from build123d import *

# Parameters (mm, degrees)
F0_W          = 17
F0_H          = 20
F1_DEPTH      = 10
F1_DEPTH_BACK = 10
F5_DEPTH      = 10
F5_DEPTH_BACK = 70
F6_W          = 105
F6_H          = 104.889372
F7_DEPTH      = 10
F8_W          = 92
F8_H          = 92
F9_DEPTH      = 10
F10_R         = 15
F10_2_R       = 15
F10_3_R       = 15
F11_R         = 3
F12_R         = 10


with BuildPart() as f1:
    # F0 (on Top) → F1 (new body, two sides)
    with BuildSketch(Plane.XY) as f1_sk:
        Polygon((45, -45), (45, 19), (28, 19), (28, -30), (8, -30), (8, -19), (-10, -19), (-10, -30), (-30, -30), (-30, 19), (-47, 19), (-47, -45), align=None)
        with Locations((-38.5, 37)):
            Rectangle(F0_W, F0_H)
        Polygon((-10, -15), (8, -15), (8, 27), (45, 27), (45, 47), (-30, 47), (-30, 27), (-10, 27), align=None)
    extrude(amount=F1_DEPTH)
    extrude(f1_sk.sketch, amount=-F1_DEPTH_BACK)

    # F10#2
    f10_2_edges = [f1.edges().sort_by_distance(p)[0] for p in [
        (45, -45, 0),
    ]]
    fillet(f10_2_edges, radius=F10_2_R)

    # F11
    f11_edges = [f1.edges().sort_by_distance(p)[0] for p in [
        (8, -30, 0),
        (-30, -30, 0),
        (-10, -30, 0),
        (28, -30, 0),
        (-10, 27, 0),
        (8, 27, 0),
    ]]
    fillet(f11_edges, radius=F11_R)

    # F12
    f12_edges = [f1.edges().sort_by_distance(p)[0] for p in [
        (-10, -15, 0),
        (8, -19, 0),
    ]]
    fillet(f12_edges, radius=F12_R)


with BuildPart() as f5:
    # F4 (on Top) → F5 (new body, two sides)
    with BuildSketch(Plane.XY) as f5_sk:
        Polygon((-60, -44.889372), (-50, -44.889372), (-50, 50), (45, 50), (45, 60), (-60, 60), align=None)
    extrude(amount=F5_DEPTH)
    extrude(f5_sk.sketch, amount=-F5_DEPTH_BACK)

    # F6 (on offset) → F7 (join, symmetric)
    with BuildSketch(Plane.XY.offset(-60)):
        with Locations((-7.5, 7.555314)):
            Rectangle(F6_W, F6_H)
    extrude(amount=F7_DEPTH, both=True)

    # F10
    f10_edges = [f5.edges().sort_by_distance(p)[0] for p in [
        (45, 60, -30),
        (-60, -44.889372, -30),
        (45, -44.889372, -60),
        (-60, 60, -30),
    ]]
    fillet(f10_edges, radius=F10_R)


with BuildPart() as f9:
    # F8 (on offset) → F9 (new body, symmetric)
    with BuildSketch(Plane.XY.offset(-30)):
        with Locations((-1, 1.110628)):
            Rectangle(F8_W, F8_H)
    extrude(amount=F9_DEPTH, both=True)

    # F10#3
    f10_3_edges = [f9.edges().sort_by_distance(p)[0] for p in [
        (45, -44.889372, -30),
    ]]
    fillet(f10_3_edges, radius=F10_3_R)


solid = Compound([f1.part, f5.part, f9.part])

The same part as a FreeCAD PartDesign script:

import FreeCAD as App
import Part
import Sketcher

V = App.Vector


def edges_at(feature, points):
    """Names of the edges that pass closest to the given points."""
    edges = feature.Shape.Edges
    near = lambda p: min(range(len(edges)), key=lambda i: edges[i].distToShape(Part.Vertex(*p))[0])
    return sorted({f"Edge{near(p) + 1}" for p in points})


def add_polygon(sketch, points):
    """Adds a closed chain of lines whose ends are joined by coincident constraints."""
    first, n = sketch.GeometryCount, len(points)
    for a, b in zip(points, points[1:] + points[:1]):
        sketch.addGeometry(Part.LineSegment(App.Vector(*a, 0), App.Vector(*b, 0)), False)
    for i in range(n):
        sketch.addConstraint(Sketcher.Constraint("Coincident", first + i, 2, first + (i + 1) % n, 1))

doc = App.newDocument("Part")
body = doc.addObject("PartDesign::Body", "Body")
body.AllowCompound = True

# Sketch on XY plane
sketch1 = body.newObject("Sketcher::SketchObject", "Sketch")
sketch1.AttachmentSupport = (doc.getObject("XY_Plane"), [""])
sketch1.MapMode = "FlatFace"
add_polygon(sketch1, [(45, -45), (45, 19), (28, 19), (28, -30), (8, -30), (8, -19), (-10, -19), (-10, -30), (-30, -30), (-30, 19), (-47, 19), (-47, -45)])  # lines 0-11
add_polygon(sketch1, [(-47, 47), (-47, 27), (-10, 27), (-10, -15), (8, -15), (8, 27), (45, 27), (45, 47)])  # lines 12-19
sketch1.addConstraint(Sketcher.Constraint("Vertical", 0))
sketch1.addConstraint(Sketcher.Constraint("Horizontal", 1))
sketch1.addConstraint(Sketcher.Constraint("Vertical", 2))
sketch1.addConstraint(Sketcher.Constraint("Horizontal", 3))
sketch1.addConstraint(Sketcher.Constraint("Vertical", 4))
sketch1.addConstraint(Sketcher.Constraint("Horizontal", 5))
sketch1.addConstraint(Sketcher.Constraint("Vertical", 6))
sketch1.addConstraint(Sketcher.Constraint("Horizontal", 7))
sketch1.addConstraint(Sketcher.Constraint("Vertical", 8))
sketch1.addConstraint(Sketcher.Constraint("Horizontal", 9))
sketch1.addConstraint(Sketcher.Constraint("Vertical", 10))
sketch1.addConstraint(Sketcher.Constraint("Horizontal", 11))
sketch1.addConstraint(Sketcher.Constraint("Vertical", 12))
sketch1.addConstraint(Sketcher.Constraint("Horizontal", 13))
sketch1.addConstraint(Sketcher.Constraint("Vertical", 14))
sketch1.addConstraint(Sketcher.Constraint("Horizontal", 15))
sketch1.addConstraint(Sketcher.Constraint("Vertical", 16))
sketch1.addConstraint(Sketcher.Constraint("Horizontal", 17))
sketch1.addConstraint(Sketcher.Constraint("Vertical", 18))
sketch1.addConstraint(Sketcher.Constraint("Horizontal", 19))
sketch1.addConstraint(Sketcher.Constraint("Horizontal", 3, 2, 6, 2))
sketch1.addConstraint(Sketcher.Constraint("Horizontal", 1, 2, 8, 2))
sketch1.addConstraint(Sketcher.Constraint("Horizontal", 13, 2, 16, 2))
sketch1.addConstraint(Sketcher.Constraint("Vertical", 10, 2, 12, 2))
sketch1.addConstraint(Sketcher.Constraint("Vertical", 6, 2, 13, 2))
sketch1.addConstraint(Sketcher.Constraint("Vertical", 4, 2, 15, 2))
sketch1.addConstraint(Sketcher.Constraint("Vertical", 11, 2, 17, 2))
sketch1.addConstraint(Sketcher.Constraint("Equal", 3, 7))
sketch1.addConstraint(Sketcher.Constraint("Equal", 1, 9))
sketch1.addConstraint(Sketcher.Constraint("Equal", 7, 12))
sketch1.addConstraint(Sketcher.Constraint("DistanceX", 1, 2, 1, 1, 17.0))
sketch1.addConstraint(Sketcher.Constraint("DistanceX", 3, 2, 3, 1, 20.0))
sketch1.addConstraint(Sketcher.Constraint("DistanceX", 5, 2, 5, 1, 18.0))
sketch1.addConstraint(Sketcher.Constraint("DistanceY", 0, 1, 0, 2, 64.0))
sketch1.addConstraint(Sketcher.Constraint("DistanceY", 2, 2, 2, 1, 49.0))
sketch1.addConstraint(Sketcher.Constraint("DistanceY", 4, 1, 4, 2, 11.0))
sketch1.addConstraint(Sketcher.Constraint("DistanceY", 14, 2, 14, 1, 42.0))
sketch1.addConstraint(Sketcher.Constraint("DistanceX", -1, 1, 0, 2, 45.0))
sketch1.addConstraint(Sketcher.Constraint("DistanceY", -1, 1, 0, 2, 19.0))
sketch1.addConstraint(Sketcher.Constraint("DistanceY", -1, 1, 12, 2, 27.0))
pad1 = body.newObject("PartDesign::Pad", "Pad")
pad1.Profile = sketch1
pad1.Type = "TwoLengths"
pad1.Length = 10
pad1.Length2 = 10
doc.recompute()

fillet = body.newObject("PartDesign::Fillet", "Fillet")
fillet.Base = (pad1, edges_at(pad1, [(45, -45, 0)]))
fillet.Radius = 15
doc.recompute()

fillet2 = body.newObject("PartDesign::Fillet", "Fillet001")
fillet2.Base = (fillet, edges_at(fillet, [
    (8, -30, 0),
    (-30, -30, 0),
    (-10, -30, 0),
    (28, -30, 0),
    (-10, 27, 0),
    (8, 27, 0),
]))
fillet2.Radius = 3
doc.recompute()

fillet3 = body.newObject("PartDesign::Fillet", "Fillet002")
fillet3.Base = (fillet2, edges_at(fillet2, [(-10, -15, 0), (8, -19, 0)]))
fillet3.Radius = 10
body2 = doc.addObject("PartDesign::Body", "Body001")

# Sketch on XY plane
sketch2 = body2.newObject("Sketcher::SketchObject", "Sketch001")
sketch2.AttachmentSupport = (doc.getObject("XY_Plane001"), [""])
sketch2.MapMode = "FlatFace"
add_polygon(sketch2, [(-60, -44.889372), (-50, -44.889372), (-50, 50), (45, 50), (45, 60), (-60, 60)])  # lines 0-5
sketch2.addConstraint(Sketcher.Constraint("Horizontal", 0))
sketch2.addConstraint(Sketcher.Constraint("Vertical", 1))
sketch2.addConstraint(Sketcher.Constraint("Horizontal", 2))
sketch2.addConstraint(Sketcher.Constraint("Vertical", 3))
sketch2.addConstraint(Sketcher.Constraint("Horizontal", 4))
sketch2.addConstraint(Sketcher.Constraint("Vertical", 5))
sketch2.addConstraint(Sketcher.Constraint("Equal", 0, 3))
sketch2.addConstraint(Sketcher.Constraint("DistanceX", 0, 1, 0, 2, 10.0))
sketch2.addConstraint(Sketcher.Constraint("DistanceX", 2, 1, 2, 2, 95.0))
sketch2.addConstraint(Sketcher.Constraint("DistanceX", 0, 2, -1, 1, 50.0))
sketch2.addConstraint(Sketcher.Constraint("DistanceY", -1, 1, 1, 2, 50.0))
sketch2.addConstraint(Sketcher.Constraint("DistanceY", 1, 1, 1, 2, 94.889372))
pad2 = body2.newObject("PartDesign::Pad", "Pad001")
pad2.Profile = sketch2
pad2.Type = "TwoLengths"
pad2.Length = 10
pad2.Length2 = 70

# Sketch on XY plane
sketch3 = body2.newObject("Sketcher::SketchObject", "Sketch002")
sketch3.AttachmentSupport = (doc.getObject("XY_Plane001"), [""])
sketch3.MapMode = "FlatFace"
sketch3.AttachmentOffset = App.Placement(V(0, 0, -60), App.Rotation())
add_polygon(sketch3, [(-60, 60), (-60, -44.889372), (45, -44.889372), (45, 60)])  # lines 0-3
sketch3.addConstraint(Sketcher.Constraint("Vertical", 0))
sketch3.addConstraint(Sketcher.Constraint("Horizontal", 1))
sketch3.addConstraint(Sketcher.Constraint("Vertical", 2))
sketch3.addConstraint(Sketcher.Constraint("Horizontal", 3))
sketch3.addConstraint(Sketcher.Constraint("DistanceX", 1, 1, 1, 2, 105.0))
sketch3.addConstraint(Sketcher.Constraint("DistanceX", 0, 2, -1, 1, 60.0))
sketch3.addConstraint(Sketcher.Constraint("DistanceY", -1, 1, 2, 2, 60.0))
sketch3.addConstraint(Sketcher.Constraint("DistanceY", 0, 2, 0, 1, 104.889372))
pad3 = body2.newObject("PartDesign::Pad", "Pad002")
pad3.Profile = sketch3
pad3.Length = 20
pad3.Midplane = True
doc.recompute()

fillet4 = body2.newObject("PartDesign::Fillet", "Fillet003")
fillet4.Base = (pad3, edges_at(pad3, [
    (45, 60, -30),
    (-60, -44.889, -30),
    (45, -44.889, -60),
    (-60, 60, -30),
]))
fillet4.Radius = 15
body3 = doc.addObject("PartDesign::Body", "Body002")

# Sketch on XY plane
sketch4 = body3.newObject("Sketcher::SketchObject", "Sketch003")
sketch4.AttachmentSupport = (doc.getObject("XY_Plane002"), [""])
sketch4.MapMode = "FlatFace"
sketch4.AttachmentOffset = App.Placement(V(0, 0, -30), App.Rotation())
add_polygon(sketch4, [(-47, 47.110628), (-47, -44.889372), (45, -44.889372), (45, 47.110628)])  # lines 0-3
sketch4.addConstraint(Sketcher.Constraint("Vertical", 0))
sketch4.addConstraint(Sketcher.Constraint("Horizontal", 1))
sketch4.addConstraint(Sketcher.Constraint("Vertical", 2))
sketch4.addConstraint(Sketcher.Constraint("Horizontal", 3))
sketch4.addConstraint(Sketcher.Constraint("Equal", 3, 0))
sketch4.addConstraint(Sketcher.Constraint("DistanceX", 1, 1, 1, 2, 92.0))
sketch4.addConstraint(Sketcher.Constraint("DistanceX", 0, 2, -1, 1, 47.0))
sketch4.addConstraint(Sketcher.Constraint("DistanceY", 0, 2, -1, 1, 44.889372))
pad4 = body3.newObject("PartDesign::Pad", "Pad003")
pad4.Profile = sketch4
pad4.Length = 20
pad4.Midplane = True
doc.recompute()

fillet5 = body3.newObject("PartDesign::Fillet", "Fillet004")
fillet5.Base = (pad4, edges_at(pad4, [(45, -44.889, -30)]))
fillet5.Radius = 15

doc.recompute()
